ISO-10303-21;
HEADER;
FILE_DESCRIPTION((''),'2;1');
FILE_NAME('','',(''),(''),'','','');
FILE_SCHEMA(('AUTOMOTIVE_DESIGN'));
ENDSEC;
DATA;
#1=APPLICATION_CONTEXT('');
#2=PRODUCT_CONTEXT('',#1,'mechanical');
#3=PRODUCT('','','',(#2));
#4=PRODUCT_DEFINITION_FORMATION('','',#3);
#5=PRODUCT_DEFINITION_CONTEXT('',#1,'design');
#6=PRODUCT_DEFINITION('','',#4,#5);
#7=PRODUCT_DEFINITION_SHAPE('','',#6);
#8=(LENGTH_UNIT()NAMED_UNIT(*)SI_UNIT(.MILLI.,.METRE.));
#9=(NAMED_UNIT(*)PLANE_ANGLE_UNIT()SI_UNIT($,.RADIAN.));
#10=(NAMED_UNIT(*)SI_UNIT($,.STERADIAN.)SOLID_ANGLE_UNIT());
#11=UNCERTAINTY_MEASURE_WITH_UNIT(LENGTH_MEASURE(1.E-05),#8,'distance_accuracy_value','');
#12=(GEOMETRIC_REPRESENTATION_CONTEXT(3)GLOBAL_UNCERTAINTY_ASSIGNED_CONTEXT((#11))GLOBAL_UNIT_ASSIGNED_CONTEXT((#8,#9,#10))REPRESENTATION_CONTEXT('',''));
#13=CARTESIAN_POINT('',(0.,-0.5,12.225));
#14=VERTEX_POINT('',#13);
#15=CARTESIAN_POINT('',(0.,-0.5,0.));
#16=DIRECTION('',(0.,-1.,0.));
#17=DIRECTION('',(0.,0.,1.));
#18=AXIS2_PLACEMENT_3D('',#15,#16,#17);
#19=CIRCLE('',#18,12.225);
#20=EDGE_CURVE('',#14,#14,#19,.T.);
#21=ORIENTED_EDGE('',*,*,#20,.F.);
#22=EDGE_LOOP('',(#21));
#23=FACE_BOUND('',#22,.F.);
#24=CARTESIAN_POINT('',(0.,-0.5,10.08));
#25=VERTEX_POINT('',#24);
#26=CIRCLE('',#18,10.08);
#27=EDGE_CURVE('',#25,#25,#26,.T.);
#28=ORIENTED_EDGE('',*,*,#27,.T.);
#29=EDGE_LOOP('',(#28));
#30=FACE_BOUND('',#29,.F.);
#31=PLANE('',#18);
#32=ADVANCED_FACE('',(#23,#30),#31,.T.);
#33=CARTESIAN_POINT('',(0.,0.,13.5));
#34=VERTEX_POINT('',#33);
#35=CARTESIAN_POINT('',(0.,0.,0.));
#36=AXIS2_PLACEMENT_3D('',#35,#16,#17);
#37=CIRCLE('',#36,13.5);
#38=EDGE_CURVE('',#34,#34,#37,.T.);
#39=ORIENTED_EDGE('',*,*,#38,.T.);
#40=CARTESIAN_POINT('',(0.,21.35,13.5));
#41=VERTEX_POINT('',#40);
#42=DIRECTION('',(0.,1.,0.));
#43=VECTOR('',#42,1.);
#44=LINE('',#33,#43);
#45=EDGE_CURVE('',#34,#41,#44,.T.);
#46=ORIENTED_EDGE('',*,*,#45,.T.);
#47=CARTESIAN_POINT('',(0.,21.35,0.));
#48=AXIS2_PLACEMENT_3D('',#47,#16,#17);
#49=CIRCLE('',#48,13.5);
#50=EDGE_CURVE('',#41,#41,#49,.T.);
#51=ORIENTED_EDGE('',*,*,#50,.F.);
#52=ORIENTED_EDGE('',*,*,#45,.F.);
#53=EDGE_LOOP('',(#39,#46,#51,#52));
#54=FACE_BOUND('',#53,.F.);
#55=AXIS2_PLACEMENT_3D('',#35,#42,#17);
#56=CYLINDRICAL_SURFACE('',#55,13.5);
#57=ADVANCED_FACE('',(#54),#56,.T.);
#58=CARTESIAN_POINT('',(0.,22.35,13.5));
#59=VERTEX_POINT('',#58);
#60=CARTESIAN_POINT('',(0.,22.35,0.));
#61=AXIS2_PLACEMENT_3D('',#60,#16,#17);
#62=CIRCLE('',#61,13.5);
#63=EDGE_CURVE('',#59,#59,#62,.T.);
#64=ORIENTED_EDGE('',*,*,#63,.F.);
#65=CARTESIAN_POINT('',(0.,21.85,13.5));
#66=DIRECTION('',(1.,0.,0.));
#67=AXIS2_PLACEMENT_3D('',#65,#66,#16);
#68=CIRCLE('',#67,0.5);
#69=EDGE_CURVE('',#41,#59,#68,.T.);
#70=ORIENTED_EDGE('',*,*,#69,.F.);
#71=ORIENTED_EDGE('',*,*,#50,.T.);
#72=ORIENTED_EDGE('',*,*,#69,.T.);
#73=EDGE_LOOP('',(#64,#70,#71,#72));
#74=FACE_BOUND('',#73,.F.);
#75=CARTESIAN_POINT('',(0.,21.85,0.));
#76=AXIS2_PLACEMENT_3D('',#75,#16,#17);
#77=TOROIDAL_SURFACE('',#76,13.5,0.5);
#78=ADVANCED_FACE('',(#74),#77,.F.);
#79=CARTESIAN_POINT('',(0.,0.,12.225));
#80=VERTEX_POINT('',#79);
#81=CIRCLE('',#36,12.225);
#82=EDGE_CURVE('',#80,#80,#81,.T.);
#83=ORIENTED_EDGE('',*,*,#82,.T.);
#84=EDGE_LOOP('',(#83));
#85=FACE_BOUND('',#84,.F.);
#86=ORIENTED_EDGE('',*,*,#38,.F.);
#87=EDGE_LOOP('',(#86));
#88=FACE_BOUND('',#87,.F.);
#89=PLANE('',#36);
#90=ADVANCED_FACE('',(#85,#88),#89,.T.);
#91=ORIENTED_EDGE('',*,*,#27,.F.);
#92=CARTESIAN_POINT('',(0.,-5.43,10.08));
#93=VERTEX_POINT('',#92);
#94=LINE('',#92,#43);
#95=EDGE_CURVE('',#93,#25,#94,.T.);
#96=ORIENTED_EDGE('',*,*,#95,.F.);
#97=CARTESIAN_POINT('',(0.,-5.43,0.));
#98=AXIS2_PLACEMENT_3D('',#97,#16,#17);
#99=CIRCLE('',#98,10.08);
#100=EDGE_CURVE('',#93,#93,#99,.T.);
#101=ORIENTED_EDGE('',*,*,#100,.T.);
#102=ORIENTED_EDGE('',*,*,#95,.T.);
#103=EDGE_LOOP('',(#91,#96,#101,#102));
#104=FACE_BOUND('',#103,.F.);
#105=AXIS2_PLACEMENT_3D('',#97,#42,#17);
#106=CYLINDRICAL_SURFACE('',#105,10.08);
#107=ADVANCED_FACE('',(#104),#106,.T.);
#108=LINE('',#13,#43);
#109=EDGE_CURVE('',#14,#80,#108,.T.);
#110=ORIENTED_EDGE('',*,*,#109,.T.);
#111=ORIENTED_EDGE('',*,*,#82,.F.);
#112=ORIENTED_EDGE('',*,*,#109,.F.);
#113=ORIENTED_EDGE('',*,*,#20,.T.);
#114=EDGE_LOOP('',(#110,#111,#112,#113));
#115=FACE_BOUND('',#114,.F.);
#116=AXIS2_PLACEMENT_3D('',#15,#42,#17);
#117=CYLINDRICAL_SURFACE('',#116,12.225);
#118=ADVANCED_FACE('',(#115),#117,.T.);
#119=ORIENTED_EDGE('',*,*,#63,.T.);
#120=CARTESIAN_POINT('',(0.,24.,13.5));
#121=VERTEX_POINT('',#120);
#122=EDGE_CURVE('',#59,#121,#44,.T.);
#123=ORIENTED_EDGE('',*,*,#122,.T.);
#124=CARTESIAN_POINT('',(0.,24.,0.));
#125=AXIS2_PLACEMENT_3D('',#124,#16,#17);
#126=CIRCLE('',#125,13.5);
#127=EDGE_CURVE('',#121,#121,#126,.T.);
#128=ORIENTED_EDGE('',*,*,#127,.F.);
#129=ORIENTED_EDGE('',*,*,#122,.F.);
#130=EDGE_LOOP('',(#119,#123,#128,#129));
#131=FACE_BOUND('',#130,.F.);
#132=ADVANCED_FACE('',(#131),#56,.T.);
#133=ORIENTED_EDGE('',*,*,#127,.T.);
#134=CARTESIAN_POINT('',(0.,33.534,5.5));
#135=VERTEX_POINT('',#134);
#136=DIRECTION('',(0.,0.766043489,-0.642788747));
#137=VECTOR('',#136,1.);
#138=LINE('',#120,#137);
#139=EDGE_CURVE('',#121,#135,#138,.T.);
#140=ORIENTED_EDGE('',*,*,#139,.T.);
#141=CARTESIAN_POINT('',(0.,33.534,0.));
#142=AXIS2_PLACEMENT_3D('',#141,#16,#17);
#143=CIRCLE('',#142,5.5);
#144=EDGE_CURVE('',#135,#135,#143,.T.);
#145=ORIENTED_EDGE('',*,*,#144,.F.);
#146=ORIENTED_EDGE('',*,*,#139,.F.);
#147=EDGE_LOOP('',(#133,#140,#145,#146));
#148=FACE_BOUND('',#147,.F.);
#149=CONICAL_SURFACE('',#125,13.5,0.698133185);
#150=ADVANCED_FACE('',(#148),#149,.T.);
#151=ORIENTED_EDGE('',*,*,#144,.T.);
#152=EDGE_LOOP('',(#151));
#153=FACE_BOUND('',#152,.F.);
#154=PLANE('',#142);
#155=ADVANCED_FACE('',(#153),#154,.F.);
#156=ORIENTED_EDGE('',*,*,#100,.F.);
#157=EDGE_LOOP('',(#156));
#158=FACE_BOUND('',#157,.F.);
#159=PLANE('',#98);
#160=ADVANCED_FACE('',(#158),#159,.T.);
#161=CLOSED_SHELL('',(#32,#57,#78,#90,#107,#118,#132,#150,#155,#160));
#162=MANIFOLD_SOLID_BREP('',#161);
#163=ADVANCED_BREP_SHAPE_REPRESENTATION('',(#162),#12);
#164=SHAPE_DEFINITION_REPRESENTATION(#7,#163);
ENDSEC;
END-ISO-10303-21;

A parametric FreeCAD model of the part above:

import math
import FreeCAD as App
import Part
import Sketcher

V = App.Vector
Q = App.Units.Quantity

doc = App.newDocument("Part")
body = doc.addObject("PartDesign::Body", "Body")

# Sketch on YZ plane
sketch1 = body.newObject("Sketcher::SketchObject", "Sketch")
sketch1.AttachmentSupport = (doc.getObject("YZ_Plane"), [""])
sketch1.MapMode = "FlatFace"
sketch1.addGeometry([
    Part.LineSegment(V(21.4, 13.5, 0), V(0, 13.5, 0)),  # 0
    Part.LineSegment(V(0, 13.5, 0), V(0, 12.2, 0)),  # 1
    Part.LineSegment(V(0, 12.2, 0), V(-0.5, 12.2, 0)),  # 2
    Part.LineSegment(V(-0.5, 12.2, 0), V(-0.5, 10.1, 0)),  # 3
    Part.LineSegment(V(-0.5, 10.1, 0), V(-5.4, 10.1, 0)),  # 4
    Part.LineSegment(V(-5.4, 10.1, 0), V(-5.4, 0, 0)),  # 5
    Part.LineSegment(V(-5.4, 0, 0), V(33.5, 0, 0)),  # 6
    Part.LineSegment(V(33.5, 0, 0), V(33.5, 5.5, 0)),  # 7
    Part.LineSegment(V(33.5, 5.5, 0), V(24, 13.5, 0)),  # 8
    Part.LineSegment(V(24, 13.5, 0), V(22.4, 13.5, 0)),  # 9
    Part.ArcOfCircle(Part.Circle(V(21.9, 13.5, 0), V(0, 0, 1), 0.5), math.radians(180), math.radians(360)),  # 10
], False)
sketch1.addConstraint([
    Sketcher.Constraint("Coincident", 0, 2, 1, 1),
    Sketcher.Constraint("Coincident", 1, 2, 2, 1),
    Sketcher.Constraint("Coincident", 2, 2, 3, 1),
    Sketcher.Constraint("Coincident", 3, 2, 4, 1),
    Sketcher.Constraint("Coincident", 4, 2, 5, 1),
    Sketcher.Constraint("Coincident", 5, 2, 6, 1),
    Sketcher.Constraint("Coincident", 6, 2, 7, 1),
    Sketcher.Constraint("Coincident", 7, 2, 8, 1),
    Sketcher.Constraint("Coincident", 8, 2, 9, 1),
    Sketcher.Constraint("Coincident", 9, 2, 10, 2),
    Sketcher.Constraint("Coincident", 10, 1, 0, 1),
    Sketcher.Constraint("Horizontal", 0),
    Sketcher.Constraint("Vertical", 1),
    Sketcher.Constraint("Horizontal", 2),
    Sketcher.Constraint("Vertical", 3),
    Sketcher.Constraint("Horizontal", 4),
    Sketcher.Constraint("Vertical", 5),
    Sketcher.Constraint("Horizontal", 6),
    Sketcher.Constraint("Vertical", 7),
    Sketcher.Constraint("Horizontal", 9),
    Sketcher.Constraint("PointOnObject", 0, 2, -2),
    Sketcher.Constraint("PointOnObject", 5, 2, -1),
    Sketcher.Constraint("Horizontal", 10, 3, 0, 2),
    Sketcher.Constraint("Horizontal", 0, 2, 8, 2),
    Sketcher.Constraint("Radius", 10, 0.5),
    Sketcher.Constraint("Angle", 8, Q("140 deg")),
    Sketcher.Constraint("DistanceX", 2, 2, 2, 1, 0.5),
    Sketcher.Constraint("DistanceY", 7, 1, 7, 2, 5.5),
    Sketcher.Constraint("DistanceX", -1, 1, 8, 2, 24.0),
    Sketcher.Constraint("DistanceX", 4, 2, 4, 1, 4.93),
    Sketcher.Constraint("DistanceX", 9, 2, 9, 1, 1.65),
    Sketcher.Constraint("DistanceY", 5, 2, 5, 1, 10.08),
    Sketcher.Constraint("DistanceY", -1, 1, 1, 2, 12.225),
    Sketcher.Constraint("DistanceY", 7, 2, 10, 3, 8.0),
])
revolution = body.newObject("PartDesign::Revolution", "Revolution")
revolution.Profile = sketch1
revolution.ReferenceAxis = (sketch1, ["H_Axis"])
revolution.Angle = 360

doc.recompute()
